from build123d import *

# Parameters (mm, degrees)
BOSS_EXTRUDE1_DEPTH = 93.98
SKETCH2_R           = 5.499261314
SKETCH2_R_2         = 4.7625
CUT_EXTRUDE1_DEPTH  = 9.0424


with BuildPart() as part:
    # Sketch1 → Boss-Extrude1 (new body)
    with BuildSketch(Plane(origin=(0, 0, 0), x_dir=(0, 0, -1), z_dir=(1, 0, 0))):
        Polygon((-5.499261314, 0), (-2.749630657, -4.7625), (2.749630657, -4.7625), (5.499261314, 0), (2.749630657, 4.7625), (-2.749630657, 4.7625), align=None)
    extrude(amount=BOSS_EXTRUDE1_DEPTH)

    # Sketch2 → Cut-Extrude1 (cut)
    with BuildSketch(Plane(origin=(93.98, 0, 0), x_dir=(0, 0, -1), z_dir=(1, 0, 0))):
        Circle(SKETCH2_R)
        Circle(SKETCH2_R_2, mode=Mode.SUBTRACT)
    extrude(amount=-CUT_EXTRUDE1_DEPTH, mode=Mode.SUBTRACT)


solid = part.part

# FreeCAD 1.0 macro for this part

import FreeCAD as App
import Part
import Sketcher

V = App.Vector
Q = App.Units.Quantity

doc = App.newDocument("Part")
body = doc.addObject("PartDesign::Body", "Body")

# Sketch on YZ plane
sketch1 = doc.addObject("Sketcher::SketchObject", "Sketch")
body.addObject(sketch1)
sketch1.AttachmentSupport = (doc.YZ_Plane, [""])
sketch1.MapMode = "FlatFace"
sketch1.addGeometry([
    Part.LineSegment(V(0, 5, 0), V(-5, 3, 0)),  # 0
    Part.LineSegment(V(-5, 3, 0), V(-5, -3, 0)),  # 1
    Part.LineSegment(V(-5, -3, 0), V(0, -5, 0)),  # 2
    Part.LineSegment(V(0, -5, 0), V(5, -3, 0)),  # 3
    Part.LineSegment(V(5, -3, 0), V(5, 3, 0)),  # 4
    Part.LineSegment(V(5, 3, 0), V(0, 5, 0)),  # 5
], False)
sketch1.addConstraint([
    Sketcher.Constraint("Coincident", 0, 2, 1, 1),
    Sketcher.Constraint("Coincident", 1, 2, 2, 1),
    Sketcher.Constraint("Coincident", 2, 2, 3, 1),
    Sketcher.Constraint("Coincident", 3, 2, 4, 1),
    Sketcher.Constraint("Coincident", 4, 2, 5, 1),
    Sketcher.Constraint("Coincident", 5, 2, 0, 1),
    Sketcher.Constraint("Vertical", 1),
    Sketcher.Constraint("Vertical", 4),
    Sketcher.Constraint("Symmetric", 0, 2, 3, 2, -1, 1),
    Sketcher.Constraint("Symmetric", 2, 2, 5, 2, -1, 1),
    Sketcher.Constraint("PointOnObject", 2, 2, -2),
    Sketcher.Constraint("Parallel", 2, 5),
    Sketcher.Constraint("Horizontal", 1, 2, 3, 2),
    Sketcher.Constraint("Angle", 0, Q("-150 deg")),
    Sketcher.Constraint("DistanceX", 0, 2, -1, 1, Q("0.1875 in")),
    Sketcher.Constraint("DistanceY", 1, 2, 1, 1, 5.499261),
])
pad1 = doc.addObject("PartDesign::Pad", "Pad")
body.addObject(pad1)
pad1.Profile = sketch1
pad1.Length = Q("3.7 in")

# Sketch on YZ plane
sketch2 = doc.addObject("Sketcher::SketchObject", "Sketch001")
body.addObject(sketch2)
sketch2.AttachmentSupport = (doc.YZ_Plane, [""])
sketch2.MapMode = "FlatFace"
sketch2.AttachmentOffset = App.Placement(V(0, 0, 3.7 * 25.4), App.Rotation())
sketch2.addGeometry([
    Part.Circle(V(0, 0, 0), V(0, 0, 1), 5.5),
    Part.Circle(V(0, 0, 0), V(0, 0, 1), 4.8),
], False)
sketch2.addConstraint([
    Sketcher.Constraint("Coincident", 0, 3, -1, 1),
    Sketcher.Constraint("Coincident", 1, 3, -1, 1),
    Sketcher.Constraint("Diameter", 1, Q("0.375 in")),
    Sketcher.Constraint("Diameter", 0, 10.998523),
])
pocket1 = doc.addObject("PartDesign::Pocket", "Pocket")
body.addObject(pocket1)
pocket1.Profile = sketch2
pocket1.Length = Q("0.356 in")

doc.recompute()
